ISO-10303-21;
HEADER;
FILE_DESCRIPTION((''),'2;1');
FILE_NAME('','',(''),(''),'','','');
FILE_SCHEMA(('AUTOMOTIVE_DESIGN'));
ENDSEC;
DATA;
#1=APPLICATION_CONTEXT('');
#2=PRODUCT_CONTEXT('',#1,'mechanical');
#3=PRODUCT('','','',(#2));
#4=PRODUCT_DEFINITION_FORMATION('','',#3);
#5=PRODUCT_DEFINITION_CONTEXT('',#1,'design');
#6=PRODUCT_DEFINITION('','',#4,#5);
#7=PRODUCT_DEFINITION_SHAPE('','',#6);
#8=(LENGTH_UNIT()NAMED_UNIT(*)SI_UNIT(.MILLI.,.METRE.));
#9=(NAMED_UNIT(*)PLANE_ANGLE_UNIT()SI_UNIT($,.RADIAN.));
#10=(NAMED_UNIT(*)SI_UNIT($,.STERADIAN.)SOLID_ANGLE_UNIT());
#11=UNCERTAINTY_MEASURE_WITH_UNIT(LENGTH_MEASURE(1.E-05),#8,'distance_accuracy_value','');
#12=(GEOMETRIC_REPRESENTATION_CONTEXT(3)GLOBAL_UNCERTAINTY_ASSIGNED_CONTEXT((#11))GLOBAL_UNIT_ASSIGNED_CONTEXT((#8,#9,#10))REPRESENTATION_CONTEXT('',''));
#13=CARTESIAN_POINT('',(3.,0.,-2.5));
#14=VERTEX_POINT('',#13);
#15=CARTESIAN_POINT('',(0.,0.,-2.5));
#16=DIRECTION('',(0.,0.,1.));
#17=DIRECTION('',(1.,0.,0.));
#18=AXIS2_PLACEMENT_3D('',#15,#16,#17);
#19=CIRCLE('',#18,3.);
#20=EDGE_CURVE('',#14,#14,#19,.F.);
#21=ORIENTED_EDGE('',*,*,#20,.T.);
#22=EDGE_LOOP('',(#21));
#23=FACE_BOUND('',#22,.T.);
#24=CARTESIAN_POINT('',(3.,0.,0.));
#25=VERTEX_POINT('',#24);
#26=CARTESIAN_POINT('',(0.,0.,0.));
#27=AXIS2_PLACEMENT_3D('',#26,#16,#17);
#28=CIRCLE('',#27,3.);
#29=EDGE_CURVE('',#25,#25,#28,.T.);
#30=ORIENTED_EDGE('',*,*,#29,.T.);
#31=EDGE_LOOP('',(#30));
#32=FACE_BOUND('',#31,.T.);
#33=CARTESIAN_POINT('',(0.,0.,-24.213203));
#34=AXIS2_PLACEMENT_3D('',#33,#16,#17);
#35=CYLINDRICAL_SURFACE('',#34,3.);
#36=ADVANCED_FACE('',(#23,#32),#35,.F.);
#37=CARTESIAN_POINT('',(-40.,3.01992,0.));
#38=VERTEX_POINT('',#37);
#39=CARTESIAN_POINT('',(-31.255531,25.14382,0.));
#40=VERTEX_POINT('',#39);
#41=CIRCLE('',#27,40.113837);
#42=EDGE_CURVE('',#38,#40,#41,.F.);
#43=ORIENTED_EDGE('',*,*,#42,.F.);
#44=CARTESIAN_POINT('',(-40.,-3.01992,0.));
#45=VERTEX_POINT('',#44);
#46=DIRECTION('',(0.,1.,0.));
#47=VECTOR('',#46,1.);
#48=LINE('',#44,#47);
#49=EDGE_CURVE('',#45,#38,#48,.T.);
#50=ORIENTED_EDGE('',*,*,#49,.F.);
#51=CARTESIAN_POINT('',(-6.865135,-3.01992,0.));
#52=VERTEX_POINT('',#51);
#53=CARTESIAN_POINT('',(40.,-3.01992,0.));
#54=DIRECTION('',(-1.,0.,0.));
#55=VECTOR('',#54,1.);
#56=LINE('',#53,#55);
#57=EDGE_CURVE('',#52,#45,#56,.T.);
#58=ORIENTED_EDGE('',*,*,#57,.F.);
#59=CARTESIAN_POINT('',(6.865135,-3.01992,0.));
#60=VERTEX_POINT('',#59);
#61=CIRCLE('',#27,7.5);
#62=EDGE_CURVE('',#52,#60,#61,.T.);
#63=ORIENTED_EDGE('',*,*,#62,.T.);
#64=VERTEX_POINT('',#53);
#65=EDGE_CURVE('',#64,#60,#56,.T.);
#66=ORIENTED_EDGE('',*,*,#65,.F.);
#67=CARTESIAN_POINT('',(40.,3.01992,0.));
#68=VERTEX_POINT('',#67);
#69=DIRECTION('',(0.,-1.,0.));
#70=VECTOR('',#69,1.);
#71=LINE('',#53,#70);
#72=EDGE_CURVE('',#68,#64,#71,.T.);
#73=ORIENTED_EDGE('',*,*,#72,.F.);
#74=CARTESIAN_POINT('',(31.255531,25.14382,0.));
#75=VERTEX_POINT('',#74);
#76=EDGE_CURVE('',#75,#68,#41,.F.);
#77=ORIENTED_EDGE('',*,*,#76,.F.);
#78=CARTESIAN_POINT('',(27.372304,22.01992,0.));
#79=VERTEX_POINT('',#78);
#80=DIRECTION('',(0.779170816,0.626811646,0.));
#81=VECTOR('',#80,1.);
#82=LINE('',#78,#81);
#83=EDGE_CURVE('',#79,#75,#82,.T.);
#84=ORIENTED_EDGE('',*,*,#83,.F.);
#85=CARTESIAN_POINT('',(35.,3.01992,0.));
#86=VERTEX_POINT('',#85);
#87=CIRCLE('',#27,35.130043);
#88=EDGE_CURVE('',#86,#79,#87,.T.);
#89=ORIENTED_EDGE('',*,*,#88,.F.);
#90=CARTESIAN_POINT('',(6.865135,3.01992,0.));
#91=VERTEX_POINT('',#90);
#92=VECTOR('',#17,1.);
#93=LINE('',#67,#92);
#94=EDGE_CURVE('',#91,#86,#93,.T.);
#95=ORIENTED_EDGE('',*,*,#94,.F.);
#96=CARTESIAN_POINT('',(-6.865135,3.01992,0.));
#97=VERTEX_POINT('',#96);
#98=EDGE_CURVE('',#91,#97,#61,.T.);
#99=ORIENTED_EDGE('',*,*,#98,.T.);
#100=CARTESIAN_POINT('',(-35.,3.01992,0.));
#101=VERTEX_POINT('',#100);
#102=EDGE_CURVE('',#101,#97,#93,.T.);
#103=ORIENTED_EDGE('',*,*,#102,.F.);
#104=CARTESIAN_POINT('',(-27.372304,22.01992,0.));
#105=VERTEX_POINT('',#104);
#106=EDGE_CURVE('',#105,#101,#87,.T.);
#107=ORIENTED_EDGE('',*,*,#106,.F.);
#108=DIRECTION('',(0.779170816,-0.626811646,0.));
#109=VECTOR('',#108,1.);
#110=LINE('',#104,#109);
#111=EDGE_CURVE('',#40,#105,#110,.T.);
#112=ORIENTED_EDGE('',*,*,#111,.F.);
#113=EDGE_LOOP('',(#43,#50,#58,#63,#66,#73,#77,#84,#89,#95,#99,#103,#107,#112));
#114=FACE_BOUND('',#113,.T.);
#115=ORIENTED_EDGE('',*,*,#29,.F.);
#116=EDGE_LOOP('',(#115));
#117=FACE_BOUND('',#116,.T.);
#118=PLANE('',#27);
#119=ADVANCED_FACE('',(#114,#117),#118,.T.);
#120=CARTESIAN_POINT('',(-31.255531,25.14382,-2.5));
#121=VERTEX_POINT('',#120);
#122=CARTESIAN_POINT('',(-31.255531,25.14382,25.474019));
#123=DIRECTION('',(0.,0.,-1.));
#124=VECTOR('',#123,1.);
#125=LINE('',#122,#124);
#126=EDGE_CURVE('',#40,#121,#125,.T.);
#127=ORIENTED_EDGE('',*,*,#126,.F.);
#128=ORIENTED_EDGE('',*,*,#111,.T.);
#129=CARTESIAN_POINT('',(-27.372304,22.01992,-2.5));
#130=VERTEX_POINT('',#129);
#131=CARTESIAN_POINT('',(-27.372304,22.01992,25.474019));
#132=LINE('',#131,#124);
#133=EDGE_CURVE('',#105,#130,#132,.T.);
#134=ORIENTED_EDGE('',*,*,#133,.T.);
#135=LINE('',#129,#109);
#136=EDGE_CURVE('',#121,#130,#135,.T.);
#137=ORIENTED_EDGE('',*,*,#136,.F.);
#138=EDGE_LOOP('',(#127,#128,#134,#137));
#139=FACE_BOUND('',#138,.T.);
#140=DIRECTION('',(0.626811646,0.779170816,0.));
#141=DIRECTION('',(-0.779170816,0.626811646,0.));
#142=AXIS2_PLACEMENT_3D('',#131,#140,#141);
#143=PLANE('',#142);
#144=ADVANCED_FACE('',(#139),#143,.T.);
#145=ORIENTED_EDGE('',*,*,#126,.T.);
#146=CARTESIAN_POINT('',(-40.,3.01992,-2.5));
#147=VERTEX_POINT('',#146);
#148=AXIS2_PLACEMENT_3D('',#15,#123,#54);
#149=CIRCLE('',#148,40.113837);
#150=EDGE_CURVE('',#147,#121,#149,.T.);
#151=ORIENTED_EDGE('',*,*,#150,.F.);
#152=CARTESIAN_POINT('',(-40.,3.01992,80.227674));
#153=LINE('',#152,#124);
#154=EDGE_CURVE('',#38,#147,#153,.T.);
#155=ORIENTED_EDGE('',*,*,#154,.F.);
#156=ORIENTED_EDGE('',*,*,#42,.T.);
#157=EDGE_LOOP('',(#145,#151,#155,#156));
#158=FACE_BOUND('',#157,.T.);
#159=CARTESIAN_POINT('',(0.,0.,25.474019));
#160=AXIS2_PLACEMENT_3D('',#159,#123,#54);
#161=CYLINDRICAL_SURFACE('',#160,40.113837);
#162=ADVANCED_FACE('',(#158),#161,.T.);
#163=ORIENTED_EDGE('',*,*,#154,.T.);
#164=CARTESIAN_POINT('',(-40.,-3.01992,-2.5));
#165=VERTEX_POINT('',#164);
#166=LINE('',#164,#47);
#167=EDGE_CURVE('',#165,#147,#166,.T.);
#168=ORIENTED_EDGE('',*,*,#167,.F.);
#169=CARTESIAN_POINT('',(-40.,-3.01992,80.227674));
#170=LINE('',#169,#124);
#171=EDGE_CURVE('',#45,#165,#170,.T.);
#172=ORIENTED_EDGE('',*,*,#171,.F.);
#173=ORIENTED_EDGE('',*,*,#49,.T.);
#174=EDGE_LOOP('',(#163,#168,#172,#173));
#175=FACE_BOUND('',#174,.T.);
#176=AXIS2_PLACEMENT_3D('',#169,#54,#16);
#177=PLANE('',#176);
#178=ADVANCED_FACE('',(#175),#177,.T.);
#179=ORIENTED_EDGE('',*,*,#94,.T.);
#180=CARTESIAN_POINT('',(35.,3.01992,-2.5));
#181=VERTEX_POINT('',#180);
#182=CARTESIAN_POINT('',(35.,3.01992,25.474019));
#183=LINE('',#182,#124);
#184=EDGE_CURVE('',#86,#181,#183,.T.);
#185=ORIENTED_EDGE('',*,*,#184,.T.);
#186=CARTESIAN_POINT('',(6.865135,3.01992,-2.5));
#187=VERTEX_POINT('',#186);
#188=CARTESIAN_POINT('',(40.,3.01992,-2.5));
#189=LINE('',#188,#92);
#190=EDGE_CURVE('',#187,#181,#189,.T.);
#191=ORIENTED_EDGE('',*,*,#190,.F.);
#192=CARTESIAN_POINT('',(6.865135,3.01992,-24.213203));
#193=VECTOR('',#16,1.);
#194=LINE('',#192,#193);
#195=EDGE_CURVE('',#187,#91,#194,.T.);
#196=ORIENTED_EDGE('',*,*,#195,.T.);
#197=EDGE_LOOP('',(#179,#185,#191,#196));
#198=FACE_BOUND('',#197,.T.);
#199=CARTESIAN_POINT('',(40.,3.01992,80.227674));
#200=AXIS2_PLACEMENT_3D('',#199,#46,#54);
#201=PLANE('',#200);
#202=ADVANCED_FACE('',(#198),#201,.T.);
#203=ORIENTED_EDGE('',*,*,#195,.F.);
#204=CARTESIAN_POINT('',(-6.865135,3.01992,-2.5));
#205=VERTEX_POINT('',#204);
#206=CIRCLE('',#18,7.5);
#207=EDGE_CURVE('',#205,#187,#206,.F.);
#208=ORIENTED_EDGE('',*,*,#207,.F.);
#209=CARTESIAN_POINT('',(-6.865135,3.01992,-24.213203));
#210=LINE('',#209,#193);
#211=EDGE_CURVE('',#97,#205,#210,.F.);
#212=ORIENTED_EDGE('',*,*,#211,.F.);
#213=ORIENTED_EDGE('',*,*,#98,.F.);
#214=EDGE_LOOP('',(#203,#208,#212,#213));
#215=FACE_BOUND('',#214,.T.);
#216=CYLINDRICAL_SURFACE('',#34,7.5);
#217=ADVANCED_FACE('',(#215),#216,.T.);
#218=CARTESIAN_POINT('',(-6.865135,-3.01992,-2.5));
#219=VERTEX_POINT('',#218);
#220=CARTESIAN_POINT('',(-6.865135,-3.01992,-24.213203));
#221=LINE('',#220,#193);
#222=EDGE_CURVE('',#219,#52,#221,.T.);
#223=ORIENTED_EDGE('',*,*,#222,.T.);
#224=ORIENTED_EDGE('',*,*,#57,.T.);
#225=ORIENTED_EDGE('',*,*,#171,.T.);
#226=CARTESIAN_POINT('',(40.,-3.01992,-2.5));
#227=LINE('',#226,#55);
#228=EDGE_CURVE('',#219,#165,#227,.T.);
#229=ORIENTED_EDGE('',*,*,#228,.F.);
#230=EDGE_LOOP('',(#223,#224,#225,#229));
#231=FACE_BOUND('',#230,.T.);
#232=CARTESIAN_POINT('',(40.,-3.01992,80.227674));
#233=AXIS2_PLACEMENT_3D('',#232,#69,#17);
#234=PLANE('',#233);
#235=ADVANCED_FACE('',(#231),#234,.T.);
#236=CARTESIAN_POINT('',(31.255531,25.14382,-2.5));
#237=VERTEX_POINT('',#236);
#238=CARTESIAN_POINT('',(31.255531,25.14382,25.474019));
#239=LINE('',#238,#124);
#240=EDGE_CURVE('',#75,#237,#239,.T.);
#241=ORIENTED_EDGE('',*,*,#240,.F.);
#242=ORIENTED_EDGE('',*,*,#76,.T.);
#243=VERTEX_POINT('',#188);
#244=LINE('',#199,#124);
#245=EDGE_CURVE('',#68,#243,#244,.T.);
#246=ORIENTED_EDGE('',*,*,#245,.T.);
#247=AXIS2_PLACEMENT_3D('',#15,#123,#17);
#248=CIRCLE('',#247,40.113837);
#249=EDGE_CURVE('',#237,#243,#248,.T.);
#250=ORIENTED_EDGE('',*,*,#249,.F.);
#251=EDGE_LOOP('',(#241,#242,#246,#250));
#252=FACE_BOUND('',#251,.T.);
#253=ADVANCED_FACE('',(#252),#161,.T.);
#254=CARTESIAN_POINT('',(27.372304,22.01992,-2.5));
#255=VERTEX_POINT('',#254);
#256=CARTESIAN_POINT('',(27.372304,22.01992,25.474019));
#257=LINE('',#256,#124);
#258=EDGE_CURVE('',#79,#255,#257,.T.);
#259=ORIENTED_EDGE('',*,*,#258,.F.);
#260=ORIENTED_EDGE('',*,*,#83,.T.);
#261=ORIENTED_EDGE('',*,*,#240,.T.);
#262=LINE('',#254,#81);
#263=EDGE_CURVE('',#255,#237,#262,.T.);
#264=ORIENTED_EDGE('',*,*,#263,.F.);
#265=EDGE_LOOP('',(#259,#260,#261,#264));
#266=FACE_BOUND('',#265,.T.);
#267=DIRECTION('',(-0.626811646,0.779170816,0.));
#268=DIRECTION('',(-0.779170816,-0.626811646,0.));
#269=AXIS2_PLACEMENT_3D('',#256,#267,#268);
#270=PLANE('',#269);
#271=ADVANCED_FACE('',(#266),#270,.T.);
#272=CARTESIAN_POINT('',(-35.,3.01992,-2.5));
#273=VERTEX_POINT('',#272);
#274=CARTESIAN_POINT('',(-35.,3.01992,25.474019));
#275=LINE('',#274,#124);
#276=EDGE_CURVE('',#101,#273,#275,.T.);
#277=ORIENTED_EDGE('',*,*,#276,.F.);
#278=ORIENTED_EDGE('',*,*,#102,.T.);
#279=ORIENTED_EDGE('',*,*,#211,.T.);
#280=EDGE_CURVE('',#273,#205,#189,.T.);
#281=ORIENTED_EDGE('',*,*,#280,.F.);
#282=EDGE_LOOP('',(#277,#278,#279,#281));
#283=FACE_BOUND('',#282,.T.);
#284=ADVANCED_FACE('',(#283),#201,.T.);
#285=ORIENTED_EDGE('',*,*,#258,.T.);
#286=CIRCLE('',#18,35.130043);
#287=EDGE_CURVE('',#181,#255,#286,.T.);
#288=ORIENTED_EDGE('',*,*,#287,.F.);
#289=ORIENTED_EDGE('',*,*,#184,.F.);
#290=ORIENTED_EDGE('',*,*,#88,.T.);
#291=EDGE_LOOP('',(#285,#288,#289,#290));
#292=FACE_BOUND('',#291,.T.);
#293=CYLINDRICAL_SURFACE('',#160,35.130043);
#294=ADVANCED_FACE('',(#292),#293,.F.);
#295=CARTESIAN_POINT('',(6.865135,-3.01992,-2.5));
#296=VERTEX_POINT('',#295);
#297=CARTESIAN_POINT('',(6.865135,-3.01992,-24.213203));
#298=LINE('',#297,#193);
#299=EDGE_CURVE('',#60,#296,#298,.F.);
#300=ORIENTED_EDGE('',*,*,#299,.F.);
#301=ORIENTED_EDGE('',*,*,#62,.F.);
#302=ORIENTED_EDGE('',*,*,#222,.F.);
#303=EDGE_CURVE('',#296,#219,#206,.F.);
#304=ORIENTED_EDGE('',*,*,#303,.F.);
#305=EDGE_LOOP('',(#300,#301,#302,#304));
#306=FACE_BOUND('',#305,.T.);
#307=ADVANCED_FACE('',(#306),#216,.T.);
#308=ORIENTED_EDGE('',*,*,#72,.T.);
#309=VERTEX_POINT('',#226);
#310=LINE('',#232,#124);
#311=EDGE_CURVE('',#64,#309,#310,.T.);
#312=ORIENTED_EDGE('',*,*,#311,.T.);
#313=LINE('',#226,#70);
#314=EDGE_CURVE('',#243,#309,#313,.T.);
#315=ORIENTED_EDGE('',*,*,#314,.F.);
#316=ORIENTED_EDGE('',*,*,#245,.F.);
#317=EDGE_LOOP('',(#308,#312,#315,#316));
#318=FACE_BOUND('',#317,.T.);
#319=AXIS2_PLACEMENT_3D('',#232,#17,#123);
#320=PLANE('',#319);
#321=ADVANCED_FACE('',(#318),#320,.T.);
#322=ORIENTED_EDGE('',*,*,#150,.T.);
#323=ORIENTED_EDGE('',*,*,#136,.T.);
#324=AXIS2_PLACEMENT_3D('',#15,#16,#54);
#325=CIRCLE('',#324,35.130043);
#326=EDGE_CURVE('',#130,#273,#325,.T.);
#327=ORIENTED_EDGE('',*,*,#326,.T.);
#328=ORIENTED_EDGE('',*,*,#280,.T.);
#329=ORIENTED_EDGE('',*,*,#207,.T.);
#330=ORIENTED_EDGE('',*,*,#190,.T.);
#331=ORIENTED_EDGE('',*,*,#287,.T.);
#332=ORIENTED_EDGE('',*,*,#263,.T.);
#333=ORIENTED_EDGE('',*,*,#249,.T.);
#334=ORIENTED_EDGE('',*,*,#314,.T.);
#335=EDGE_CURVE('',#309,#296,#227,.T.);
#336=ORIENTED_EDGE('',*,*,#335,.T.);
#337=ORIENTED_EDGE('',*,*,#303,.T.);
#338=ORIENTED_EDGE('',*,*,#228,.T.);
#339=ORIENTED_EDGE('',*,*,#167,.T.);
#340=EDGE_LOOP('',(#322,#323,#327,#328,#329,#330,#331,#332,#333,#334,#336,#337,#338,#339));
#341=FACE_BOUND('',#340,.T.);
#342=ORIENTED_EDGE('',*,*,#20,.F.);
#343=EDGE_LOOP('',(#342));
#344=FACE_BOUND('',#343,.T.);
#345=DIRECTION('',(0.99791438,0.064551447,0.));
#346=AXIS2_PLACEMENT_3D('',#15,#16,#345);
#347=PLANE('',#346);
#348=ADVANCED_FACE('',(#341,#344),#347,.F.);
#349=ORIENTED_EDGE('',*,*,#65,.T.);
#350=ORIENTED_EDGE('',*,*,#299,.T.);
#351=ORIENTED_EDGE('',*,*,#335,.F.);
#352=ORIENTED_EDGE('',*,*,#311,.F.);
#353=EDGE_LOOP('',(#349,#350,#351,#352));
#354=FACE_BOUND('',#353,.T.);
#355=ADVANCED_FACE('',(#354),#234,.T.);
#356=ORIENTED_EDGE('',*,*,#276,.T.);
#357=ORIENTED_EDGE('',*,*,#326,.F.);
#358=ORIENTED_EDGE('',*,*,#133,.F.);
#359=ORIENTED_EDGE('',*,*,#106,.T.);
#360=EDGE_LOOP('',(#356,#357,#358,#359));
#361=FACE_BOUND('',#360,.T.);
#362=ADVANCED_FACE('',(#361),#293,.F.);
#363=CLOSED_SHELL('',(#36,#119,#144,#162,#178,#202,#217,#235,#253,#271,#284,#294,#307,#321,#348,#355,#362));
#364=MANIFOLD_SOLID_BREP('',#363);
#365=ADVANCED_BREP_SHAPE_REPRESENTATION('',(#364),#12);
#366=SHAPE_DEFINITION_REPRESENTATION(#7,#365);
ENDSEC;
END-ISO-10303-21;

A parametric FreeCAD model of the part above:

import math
import FreeCAD as App
import Part
import Sketcher

V = App.Vector


def add_polygon(sketch, points):
    """Adds a closed chain of lines whose ends are joined by coincident constraints."""
    first, n = sketch.GeometryCount, len(points)
    for a, b in zip(points, points[1:] + points[:1]):
        sketch.addGeometry(Part.LineSegment(App.Vector(*a, 0), App.Vector(*b, 0)), False)
    for i in range(n):
        sketch.addConstraint(Sketcher.Constraint("Coincident", first + i, 2, first + (i + 1) % n, 1))

doc = App.newDocument("Part")
body = doc.addObject("PartDesign::Body", "Body")

# Sketch on XY plane
sketch1 = body.newObject("Sketcher::SketchObject", "Sketch")
sketch1.AttachmentSupport = (doc.getObject("XY_Plane"), [""])
sketch1.MapMode = "FlatFace"
sketch1.addGeometry(Part.Circle(V(0, 0, 0), V(0, 0, 1), 7.5), False)
sketch1.addGeometry(Part.Circle(V(0, 0, 0), V(0, 0, 1), 3), False)
sketch1.addConstraint(Sketcher.Constraint("Coincident", 0, 3, -1, 1))
sketch1.addConstraint(Sketcher.Constraint("Coincident", 1, 3, -1, 1))
sketch1.addConstraint(Sketcher.Constraint("Diameter", 0, 15.0))
sketch1.addConstraint(Sketcher.Constraint("Diameter", 1, 6.0))
pad1 = body.newObject("PartDesign::Pad", "Pad")
pad1.Profile = sketch1
pad1.Length = 2.5
pad1.Reversed = True

# Sketch on XY plane
sketch2 = body.newObject("Sketcher::SketchObject", "Sketch001")
sketch2.AttachmentSupport = (doc.getObject("XY_Plane"), [""])
sketch2.MapMode = "FlatFace"
sketch2.AttachmentOffset = App.Placement(V(0, 0, -2.5), App.Rotation())
add_polygon(sketch2, [(40, 3), (40, -3), (-40, -3), (-40, 3)])  # lines 0-3
sketch2.addGeometry(Part.Circle(V(0, 0, 0), V(0, 0, 1), 3), False)  # 4
sketch2.addConstraint(Sketcher.Constraint("Vertical", 0))
sketch2.addConstraint(Sketcher.Constraint("Horizontal", 1))
sketch2.addConstraint(Sketcher.Constraint("Vertical", 2))
sketch2.addConstraint(Sketcher.Constraint("Horizontal", 3))
sketch2.addConstraint(Sketcher.Constraint("Coincident", 4, 3, -1, 1))
sketch2.addConstraint(Sketcher.Constraint("Symmetric", 0, 2, 2, 2, -1, 1))
sketch2.addConstraint(Sketcher.Constraint("Diameter", 4, 6.0))
sketch2.addConstraint(Sketcher.Constraint("DistanceX", 1, 2, 1, 1, 80.0))
sketch2.addConstraint(Sketcher.Constraint("DistanceY", 0, 2, 0, 1, 6.03984))
pad2 = body.newObject("PartDesign::Pad", "Pad001")
pad2.Profile = sketch2
pad2.Length = 2.5

# Sketch on XY plane
sketch3 = body.newObject("Sketcher::SketchObject", "Sketch002")
sketch3.AttachmentSupport = (doc.getObject("XY_Plane"), [""])
sketch3.MapMode = "FlatFace"
sketch3.AttachmentOffset = App.Placement(V(0, 0, -2.5), App.Rotation())
sketch3.addGeometry(Part.LineSegment(V(-31.3, 25.1, 0), V(-27.4, 22, 0)), False)
sketch3.addGeometry(Part.ArcOfCircle(Part.Circle(V(0, 0, 0), V(0, 0, 1), 35.1), math.radians(141), math.radians(175)), False)
sketch3.addGeometry(Part.LineSegment(V(-35, 3, 0), V(-40, 3, 0)), False)
sketch3.addGeometry(Part.ArcOfCircle(Part.Circle(V(0, 0, 0), V(0, 0, 1), 40.1), math.radians(141), math.radians(176)), False)
sketch3.addGeometry(Part.LineSegment(V(27.4, 22, 0), V(31.3, 25.1, 0)), False)
sketch3.addGeometry(Part.ArcOfCircle(Part.Circle(V(0, 0, 0), V(0, 0, 1), 40.1), math.radians(4), math.radians(39)), False)
sketch3.addGeometry(Part.LineSegment(V(40, 3, 0), V(35, 3, 0)), False)
sketch3.addGeometry(Part.ArcOfCircle(Part.Circle(V(0, 0, 0), V(0, 0, 1), 35.1), math.radians(5), math.radians(39)), False)
sketch3.addConstraint(Sketcher.Constraint("Coincident", 0, 2, 1, 1))
sketch3.addConstraint(Sketcher.Constraint("Coincident", 1, 2, 2, 1))
sketch3.addConstraint(Sketcher.Constraint("Coincident", 2, 2, 3, 2))
sketch3.addConstraint(Sketcher.Constraint("Coincident", 3, 1, 0, 1))
sketch3.addConstraint(Sketcher.Constraint("Coincident", 4, 2, 5, 2))
sketch3.addConstraint(Sketcher.Constraint("Coincident", 5, 1, 6, 1))
sketch3.addConstraint(Sketcher.Constraint("Coincident", 6, 2, 7, 1))
sketch3.addConstraint(Sketcher.Constraint("Coincident", 7, 2, 4, 1))
sketch3.addConstraint(Sketcher.Constraint("Horizontal", 2))
sketch3.addConstraint(Sketcher.Constraint("Horizontal", 6))
sketch3.addConstraint(Sketcher.Constraint("Coincident", 1, 3, -1, 1))
sketch3.addConstraint(Sketcher.Constraint("Coincident", 3, 3, -1, 1))
sketch3.addConstraint(Sketcher.Constraint("Coincident", 5, 3, -1, 1))
sketch3.addConstraint(Sketcher.Constraint("Coincident", 7, 3, -1, 1))
sketch3.addConstraint(Sketcher.Constraint("Equal", 3, 5))
sketch3.addConstraint(Sketcher.Constraint("Equal", 1, 7))
sketch3.addConstraint(Sketcher.Constraint("Horizontal", 3, 1, 4, 2))
sketch3.addConstraint(Sketcher.Constraint("Horizontal", 2, 2, 5, 1))
sketch3.addConstraint(Sketcher.Constraint("Horizontal", 0, 2, 7, 2))
sketch3.addConstraint(Sketcher.Constraint("DistanceX", 2, 2, 2, 1, 5.0))
sketch3.addConstraint(Sketcher.Constraint("DistanceX", 1, 2, -1, 1, 35.0))
sketch3.addConstraint(Sketcher.Constraint("DistanceY", 1, 2, 0, 2, 19.0))
sketch3.addConstraint(Sketcher.Constraint("Radius", 1, 35.130043))
sketch3.addConstraint(Sketcher.Constraint("DistanceY", 0, 2, 3, 1, 3.1239))
pad3 = body.newObject("PartDesign::Pad", "Pad002")
pad3.Profile = sketch3
pad3.Length = 2.5

doc.recompute()
